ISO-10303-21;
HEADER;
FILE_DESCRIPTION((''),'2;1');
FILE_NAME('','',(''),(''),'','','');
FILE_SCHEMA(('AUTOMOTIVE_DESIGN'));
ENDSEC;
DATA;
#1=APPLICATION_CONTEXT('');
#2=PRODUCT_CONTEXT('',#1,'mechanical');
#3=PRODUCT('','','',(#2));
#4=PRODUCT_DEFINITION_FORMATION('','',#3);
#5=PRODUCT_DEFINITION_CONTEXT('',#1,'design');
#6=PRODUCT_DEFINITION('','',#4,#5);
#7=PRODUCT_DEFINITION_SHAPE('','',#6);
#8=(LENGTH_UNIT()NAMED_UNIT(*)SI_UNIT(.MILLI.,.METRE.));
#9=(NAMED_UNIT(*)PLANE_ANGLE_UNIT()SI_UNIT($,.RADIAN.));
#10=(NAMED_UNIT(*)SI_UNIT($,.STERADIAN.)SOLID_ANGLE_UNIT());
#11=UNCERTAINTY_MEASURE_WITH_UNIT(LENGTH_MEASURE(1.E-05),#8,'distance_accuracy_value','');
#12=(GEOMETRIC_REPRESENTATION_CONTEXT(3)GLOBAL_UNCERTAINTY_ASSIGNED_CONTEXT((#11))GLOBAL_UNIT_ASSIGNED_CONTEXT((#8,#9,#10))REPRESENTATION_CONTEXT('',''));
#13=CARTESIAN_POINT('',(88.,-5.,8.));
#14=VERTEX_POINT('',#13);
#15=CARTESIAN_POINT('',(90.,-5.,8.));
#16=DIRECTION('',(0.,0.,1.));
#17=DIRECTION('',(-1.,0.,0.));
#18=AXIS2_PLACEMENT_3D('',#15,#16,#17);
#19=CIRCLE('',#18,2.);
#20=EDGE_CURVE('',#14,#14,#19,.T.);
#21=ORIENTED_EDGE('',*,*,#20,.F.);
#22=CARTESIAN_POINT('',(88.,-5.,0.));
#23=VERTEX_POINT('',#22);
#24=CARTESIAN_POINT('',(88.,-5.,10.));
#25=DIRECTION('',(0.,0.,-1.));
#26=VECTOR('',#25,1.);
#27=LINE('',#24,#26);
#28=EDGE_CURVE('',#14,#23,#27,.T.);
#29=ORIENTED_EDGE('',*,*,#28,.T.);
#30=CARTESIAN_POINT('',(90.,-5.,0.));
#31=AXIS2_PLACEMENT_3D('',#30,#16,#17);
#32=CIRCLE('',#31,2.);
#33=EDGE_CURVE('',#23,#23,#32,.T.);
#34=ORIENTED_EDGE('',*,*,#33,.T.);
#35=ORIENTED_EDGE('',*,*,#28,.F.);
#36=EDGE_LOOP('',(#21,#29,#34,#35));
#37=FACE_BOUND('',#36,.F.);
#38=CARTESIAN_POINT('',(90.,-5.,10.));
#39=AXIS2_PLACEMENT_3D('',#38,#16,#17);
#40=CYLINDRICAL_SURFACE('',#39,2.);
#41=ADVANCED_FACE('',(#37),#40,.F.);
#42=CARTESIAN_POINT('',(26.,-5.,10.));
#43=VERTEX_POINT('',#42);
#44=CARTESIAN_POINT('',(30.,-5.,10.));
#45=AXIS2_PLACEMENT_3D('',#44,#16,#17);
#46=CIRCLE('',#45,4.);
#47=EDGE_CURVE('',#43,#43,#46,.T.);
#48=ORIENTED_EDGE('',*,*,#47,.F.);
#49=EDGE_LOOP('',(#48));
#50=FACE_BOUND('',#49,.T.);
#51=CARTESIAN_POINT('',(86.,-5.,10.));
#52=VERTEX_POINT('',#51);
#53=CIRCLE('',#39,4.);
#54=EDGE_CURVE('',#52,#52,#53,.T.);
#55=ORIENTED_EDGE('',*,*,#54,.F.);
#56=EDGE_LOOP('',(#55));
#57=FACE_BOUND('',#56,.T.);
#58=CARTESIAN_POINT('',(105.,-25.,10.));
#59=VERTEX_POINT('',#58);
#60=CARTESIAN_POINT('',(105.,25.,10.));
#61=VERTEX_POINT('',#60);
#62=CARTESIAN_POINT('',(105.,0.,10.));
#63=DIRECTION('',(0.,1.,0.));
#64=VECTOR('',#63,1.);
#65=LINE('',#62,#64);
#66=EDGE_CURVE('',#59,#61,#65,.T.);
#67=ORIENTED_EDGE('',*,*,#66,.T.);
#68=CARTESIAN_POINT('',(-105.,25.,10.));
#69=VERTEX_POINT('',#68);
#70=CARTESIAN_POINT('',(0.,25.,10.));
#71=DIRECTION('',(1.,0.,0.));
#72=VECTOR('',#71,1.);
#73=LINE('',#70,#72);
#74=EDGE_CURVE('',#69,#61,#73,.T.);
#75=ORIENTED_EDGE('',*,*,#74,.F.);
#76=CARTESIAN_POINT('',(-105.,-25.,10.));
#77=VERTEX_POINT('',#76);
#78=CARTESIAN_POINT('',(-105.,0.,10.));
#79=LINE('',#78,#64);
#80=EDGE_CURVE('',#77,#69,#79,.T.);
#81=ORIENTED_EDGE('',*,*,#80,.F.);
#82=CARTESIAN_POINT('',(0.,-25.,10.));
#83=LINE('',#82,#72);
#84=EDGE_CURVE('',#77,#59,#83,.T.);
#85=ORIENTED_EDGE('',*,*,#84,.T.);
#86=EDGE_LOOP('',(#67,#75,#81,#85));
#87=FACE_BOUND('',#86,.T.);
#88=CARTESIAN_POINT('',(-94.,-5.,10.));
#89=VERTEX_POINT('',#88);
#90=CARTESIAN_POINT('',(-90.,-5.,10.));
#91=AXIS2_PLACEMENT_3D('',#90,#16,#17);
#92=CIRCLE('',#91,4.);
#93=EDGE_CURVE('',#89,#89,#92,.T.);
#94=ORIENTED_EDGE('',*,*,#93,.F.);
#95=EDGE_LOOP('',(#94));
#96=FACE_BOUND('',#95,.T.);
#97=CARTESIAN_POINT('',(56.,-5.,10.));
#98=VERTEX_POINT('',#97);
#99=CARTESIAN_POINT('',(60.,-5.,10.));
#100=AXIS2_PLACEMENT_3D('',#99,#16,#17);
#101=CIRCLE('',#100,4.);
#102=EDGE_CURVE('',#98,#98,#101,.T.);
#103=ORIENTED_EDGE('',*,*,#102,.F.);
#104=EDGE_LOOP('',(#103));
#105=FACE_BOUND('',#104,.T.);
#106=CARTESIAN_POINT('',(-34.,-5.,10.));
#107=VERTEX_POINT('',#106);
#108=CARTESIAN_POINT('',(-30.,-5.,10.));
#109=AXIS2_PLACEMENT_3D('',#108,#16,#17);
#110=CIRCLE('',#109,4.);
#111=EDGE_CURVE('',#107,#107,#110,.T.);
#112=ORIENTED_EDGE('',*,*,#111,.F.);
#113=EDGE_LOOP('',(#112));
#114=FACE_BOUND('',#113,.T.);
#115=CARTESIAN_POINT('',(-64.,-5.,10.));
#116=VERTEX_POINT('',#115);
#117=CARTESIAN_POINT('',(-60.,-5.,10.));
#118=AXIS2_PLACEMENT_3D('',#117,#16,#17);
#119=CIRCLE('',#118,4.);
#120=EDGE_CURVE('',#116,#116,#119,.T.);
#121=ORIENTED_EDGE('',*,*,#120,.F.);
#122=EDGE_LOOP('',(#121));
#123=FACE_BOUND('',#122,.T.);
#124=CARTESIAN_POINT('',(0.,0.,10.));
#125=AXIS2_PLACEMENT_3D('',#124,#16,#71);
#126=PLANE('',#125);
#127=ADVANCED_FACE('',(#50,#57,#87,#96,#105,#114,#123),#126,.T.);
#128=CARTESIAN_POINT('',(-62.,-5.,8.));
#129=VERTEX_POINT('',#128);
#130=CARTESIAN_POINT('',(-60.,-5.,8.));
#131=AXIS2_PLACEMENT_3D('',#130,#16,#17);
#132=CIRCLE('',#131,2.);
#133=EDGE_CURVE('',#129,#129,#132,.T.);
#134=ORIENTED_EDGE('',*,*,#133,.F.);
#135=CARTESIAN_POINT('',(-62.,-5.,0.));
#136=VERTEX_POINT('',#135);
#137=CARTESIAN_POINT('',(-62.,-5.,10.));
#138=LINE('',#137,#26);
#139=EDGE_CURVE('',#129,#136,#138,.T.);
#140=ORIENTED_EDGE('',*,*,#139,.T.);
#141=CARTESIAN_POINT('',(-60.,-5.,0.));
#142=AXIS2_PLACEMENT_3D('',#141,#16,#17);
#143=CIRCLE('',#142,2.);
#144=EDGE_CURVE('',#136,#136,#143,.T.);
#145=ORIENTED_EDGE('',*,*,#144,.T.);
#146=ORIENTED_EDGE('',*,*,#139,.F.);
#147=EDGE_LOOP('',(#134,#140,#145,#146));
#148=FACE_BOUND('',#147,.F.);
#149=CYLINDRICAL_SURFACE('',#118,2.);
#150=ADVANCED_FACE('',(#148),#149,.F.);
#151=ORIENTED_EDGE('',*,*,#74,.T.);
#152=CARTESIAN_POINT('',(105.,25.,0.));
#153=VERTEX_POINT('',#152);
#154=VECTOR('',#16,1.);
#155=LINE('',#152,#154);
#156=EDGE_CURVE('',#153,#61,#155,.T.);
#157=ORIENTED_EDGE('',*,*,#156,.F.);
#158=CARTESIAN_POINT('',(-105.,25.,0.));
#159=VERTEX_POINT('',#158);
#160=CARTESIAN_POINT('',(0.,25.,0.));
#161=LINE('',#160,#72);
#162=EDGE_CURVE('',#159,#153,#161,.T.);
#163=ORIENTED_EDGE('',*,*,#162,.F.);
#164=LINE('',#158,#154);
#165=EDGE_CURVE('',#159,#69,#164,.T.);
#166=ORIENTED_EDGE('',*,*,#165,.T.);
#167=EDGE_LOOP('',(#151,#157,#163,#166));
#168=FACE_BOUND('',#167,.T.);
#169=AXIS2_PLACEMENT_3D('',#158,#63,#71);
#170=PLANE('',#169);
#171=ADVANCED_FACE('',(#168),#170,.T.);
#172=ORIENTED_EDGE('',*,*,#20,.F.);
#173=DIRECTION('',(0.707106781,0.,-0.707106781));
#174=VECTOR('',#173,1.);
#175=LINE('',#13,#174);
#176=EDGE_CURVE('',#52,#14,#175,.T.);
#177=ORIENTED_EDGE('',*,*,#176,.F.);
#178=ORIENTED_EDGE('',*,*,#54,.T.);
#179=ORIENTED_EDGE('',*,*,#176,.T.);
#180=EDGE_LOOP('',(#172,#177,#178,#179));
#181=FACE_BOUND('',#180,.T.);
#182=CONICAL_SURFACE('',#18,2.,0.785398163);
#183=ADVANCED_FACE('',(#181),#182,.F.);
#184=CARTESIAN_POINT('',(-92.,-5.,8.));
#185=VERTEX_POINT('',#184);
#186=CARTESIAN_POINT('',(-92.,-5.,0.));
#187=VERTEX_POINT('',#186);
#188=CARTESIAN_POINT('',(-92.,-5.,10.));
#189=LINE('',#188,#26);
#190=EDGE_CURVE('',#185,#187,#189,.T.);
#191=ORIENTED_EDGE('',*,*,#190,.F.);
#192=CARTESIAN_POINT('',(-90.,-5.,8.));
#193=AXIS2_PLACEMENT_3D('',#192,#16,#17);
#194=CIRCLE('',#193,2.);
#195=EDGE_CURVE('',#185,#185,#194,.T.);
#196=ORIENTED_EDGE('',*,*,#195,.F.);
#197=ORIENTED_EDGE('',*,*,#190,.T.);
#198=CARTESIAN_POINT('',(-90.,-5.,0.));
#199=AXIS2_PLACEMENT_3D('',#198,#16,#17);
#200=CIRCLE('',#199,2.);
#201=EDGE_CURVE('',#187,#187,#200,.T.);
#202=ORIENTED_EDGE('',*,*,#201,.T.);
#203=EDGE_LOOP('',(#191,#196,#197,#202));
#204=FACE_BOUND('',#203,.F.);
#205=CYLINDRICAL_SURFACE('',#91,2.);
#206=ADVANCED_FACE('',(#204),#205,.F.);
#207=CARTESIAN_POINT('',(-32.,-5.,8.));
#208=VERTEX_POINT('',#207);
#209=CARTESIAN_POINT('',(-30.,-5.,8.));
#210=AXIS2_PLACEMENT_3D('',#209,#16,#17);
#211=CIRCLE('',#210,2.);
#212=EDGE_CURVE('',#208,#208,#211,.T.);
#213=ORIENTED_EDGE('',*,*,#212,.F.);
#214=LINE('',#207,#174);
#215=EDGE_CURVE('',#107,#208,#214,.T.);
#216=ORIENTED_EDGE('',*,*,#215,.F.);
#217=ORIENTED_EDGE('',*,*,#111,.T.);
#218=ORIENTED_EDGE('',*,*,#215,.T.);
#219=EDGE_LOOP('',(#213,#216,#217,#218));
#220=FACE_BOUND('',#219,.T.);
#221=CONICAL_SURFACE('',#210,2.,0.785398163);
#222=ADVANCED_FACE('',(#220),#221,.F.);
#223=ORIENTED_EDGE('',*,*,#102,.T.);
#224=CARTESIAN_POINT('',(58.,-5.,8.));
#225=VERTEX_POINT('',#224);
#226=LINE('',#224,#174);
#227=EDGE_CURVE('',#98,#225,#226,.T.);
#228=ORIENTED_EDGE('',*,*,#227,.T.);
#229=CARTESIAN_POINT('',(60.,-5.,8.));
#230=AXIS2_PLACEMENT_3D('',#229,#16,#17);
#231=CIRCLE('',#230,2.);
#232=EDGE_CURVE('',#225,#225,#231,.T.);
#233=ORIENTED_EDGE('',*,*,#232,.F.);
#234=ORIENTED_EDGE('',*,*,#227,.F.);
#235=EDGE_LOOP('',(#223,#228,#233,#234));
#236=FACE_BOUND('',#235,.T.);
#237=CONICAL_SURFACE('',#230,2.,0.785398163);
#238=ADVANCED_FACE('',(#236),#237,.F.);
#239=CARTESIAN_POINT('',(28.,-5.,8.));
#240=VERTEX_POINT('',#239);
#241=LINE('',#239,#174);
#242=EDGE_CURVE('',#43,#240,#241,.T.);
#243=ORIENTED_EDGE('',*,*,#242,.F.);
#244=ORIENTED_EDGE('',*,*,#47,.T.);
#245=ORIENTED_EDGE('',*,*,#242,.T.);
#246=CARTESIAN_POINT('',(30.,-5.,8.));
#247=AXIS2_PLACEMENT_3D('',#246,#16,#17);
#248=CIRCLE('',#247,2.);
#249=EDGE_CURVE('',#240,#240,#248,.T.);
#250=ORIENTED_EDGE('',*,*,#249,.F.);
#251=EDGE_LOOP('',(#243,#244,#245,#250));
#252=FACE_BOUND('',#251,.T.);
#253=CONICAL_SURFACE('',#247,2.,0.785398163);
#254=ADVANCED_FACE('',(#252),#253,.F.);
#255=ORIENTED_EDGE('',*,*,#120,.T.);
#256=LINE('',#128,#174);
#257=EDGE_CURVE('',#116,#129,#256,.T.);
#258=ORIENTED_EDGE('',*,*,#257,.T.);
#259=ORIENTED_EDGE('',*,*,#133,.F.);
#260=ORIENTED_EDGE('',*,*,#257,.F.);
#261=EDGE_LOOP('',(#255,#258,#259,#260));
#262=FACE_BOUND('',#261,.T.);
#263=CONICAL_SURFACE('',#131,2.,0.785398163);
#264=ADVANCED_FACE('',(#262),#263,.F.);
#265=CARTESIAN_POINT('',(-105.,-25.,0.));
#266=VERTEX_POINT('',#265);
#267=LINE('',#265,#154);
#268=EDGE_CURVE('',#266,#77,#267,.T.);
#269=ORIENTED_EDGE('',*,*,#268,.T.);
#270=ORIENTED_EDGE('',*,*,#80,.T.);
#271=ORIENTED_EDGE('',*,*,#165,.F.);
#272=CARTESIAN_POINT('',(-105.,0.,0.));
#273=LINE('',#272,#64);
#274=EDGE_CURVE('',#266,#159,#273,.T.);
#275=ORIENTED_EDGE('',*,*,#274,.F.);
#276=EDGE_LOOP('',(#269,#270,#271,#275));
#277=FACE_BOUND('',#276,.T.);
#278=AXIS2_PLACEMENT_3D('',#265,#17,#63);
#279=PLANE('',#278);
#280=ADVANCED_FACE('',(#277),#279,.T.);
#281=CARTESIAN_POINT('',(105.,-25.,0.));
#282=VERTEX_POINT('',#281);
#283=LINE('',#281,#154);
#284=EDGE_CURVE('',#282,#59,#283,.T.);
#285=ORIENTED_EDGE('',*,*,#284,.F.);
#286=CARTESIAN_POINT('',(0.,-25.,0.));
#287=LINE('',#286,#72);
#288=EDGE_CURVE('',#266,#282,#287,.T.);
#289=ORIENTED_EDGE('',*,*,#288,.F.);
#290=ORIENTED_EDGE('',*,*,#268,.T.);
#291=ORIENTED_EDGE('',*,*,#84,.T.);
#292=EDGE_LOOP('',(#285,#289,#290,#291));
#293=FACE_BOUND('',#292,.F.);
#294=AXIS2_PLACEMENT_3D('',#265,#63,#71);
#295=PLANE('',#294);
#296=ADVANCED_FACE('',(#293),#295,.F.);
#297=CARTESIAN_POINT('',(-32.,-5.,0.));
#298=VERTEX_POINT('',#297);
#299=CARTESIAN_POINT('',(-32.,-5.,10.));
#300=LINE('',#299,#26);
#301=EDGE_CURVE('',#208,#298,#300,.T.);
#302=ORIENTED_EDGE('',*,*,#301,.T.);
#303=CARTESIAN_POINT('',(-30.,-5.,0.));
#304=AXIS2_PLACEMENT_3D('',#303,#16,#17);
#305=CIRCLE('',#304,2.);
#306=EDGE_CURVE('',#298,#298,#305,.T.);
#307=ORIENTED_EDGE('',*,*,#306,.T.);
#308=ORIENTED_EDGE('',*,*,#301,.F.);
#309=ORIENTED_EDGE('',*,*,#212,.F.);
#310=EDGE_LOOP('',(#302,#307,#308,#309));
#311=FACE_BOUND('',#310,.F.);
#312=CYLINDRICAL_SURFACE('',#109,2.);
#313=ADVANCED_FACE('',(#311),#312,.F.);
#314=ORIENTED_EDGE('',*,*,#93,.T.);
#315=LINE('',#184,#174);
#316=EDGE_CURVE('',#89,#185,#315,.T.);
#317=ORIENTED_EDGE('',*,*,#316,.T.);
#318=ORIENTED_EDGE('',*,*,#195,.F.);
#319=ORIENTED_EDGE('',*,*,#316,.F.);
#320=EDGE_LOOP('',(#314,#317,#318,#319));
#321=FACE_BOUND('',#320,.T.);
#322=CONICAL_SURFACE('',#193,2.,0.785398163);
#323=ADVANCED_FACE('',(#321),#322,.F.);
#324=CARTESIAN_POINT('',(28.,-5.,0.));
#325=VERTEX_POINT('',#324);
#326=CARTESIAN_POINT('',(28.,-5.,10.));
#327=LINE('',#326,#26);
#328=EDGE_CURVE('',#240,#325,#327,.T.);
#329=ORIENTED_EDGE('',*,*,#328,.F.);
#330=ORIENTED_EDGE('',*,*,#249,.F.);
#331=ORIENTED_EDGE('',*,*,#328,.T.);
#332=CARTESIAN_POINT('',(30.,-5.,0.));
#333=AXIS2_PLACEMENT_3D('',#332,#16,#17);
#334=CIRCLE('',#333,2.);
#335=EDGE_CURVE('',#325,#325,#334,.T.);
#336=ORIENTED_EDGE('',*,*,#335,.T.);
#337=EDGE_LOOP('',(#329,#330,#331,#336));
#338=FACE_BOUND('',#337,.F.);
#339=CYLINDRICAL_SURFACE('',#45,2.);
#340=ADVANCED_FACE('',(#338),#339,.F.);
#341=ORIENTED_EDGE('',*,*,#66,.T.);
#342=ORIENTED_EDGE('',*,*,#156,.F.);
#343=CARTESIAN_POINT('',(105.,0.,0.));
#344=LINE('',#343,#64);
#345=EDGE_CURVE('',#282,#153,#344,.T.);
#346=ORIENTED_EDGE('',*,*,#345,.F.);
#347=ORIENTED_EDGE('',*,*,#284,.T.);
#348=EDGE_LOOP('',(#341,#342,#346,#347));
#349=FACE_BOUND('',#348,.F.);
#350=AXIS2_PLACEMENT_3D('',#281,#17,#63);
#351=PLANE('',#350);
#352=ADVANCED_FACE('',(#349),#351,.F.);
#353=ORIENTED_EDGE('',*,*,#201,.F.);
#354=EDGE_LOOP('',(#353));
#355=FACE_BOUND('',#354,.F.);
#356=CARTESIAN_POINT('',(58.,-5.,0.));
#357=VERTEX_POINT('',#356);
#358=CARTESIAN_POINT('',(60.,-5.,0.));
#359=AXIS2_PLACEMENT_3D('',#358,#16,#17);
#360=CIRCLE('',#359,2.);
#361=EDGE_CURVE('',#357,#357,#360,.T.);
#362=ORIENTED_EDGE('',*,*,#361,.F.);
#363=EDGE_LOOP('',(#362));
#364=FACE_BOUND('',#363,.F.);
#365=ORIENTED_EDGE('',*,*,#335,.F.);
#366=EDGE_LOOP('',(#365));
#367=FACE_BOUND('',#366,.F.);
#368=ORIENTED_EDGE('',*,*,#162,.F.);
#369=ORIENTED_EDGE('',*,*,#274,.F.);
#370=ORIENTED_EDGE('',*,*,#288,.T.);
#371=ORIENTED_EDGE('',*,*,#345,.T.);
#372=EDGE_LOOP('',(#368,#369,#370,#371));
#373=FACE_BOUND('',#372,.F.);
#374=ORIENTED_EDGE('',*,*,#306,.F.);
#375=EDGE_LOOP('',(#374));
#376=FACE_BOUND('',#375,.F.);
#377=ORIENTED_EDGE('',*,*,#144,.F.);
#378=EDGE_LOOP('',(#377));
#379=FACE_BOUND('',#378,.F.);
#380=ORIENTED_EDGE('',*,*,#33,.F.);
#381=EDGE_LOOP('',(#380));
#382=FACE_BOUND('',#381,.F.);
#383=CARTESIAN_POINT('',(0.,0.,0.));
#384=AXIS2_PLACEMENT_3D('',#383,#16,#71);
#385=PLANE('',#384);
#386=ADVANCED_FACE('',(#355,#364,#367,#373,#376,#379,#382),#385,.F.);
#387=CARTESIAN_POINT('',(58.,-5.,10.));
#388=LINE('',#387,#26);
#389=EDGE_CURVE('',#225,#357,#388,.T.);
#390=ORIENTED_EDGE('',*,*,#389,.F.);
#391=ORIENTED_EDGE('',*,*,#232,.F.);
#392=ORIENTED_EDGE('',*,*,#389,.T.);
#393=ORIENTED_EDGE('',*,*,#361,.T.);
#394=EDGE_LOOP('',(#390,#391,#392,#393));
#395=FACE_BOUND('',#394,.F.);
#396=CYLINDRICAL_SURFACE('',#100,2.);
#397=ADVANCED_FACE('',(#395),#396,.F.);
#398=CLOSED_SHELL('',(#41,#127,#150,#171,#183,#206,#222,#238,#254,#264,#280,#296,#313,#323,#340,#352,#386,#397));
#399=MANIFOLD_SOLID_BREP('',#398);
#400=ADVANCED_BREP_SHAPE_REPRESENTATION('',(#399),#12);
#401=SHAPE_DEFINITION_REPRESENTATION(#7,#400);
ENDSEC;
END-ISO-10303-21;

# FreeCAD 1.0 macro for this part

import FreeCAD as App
import Part
import Sketcher

V = App.Vector
Q = App.Units.Quantity


def edges_at(feature, points):
    """Names of the edges that pass closest to the given points."""
    edges = feature.Shape.Edges
    near = lambda p: min(range(len(edges)), key=lambda i: edges[i].distToShape(Part.Vertex(*p))[0])
    return sorted({f"Edge{near(p) + 1}" for p in points})


def add_polygon(sketch, points):
    """Adds a closed chain of lines whose ends are joined by coincident constraints."""
    first, n = sketch.GeometryCount, len(points)
    for a, b in zip(points, points[1:] + points[:1]):
        sketch.addGeometry(Part.LineSegment(App.Vector(*a, 0), App.Vector(*b, 0)), False)
    for i in range(n):
        sketch.addConstraint(Sketcher.Constraint("Coincident", first + i, 2, first + (i + 1) % n, 1))

doc = App.newDocument("Part")
body = doc.addObject("PartDesign::Body", "Body")

sketch1 = body.newObject("Sketcher::SketchObject", "Sketch")
sketch1.AttachmentSupport = (doc.getObject("XY_Plane"), [""])
sketch1.MapMode = "FlatFace"
add_polygon(sketch1, [(-105, 25), (-105, -25), (105, -25), (105, 25)])
sketch1.addConstraint(Sketcher.Constraint("Vertical", 0))
sketch1.addConstraint(Sketcher.Constraint("Horizontal", 1))
sketch1.addConstraint(Sketcher.Constraint("Vertical", 2))
sketch1.addConstraint(Sketcher.Constraint("Horizontal", 3))
sketch1.addConstraint(Sketcher.Constraint("Symmetric", 0, 2, 2, 2, -1, 1))
sketch1.addConstraint(Sketcher.Constraint("DistanceX", 1, 1, 1, 2, Q("210 mm")))
sketch1.addConstraint(Sketcher.Constraint("DistanceY", 0, 2, 0, 1, Q("50 mm")))
pad1 = body.newObject("PartDesign::Pad", "Pad")
pad1.Profile = sketch1
pad1.Length = 10

sketch2 = body.newObject("Sketcher::SketchObject", "Sketch001")
sketch2.AttachmentSupport = (doc.getObject("XY_Plane"), [""])
sketch2.MapMode = "FlatFace"
sketch2.AttachmentOffset = App.Placement(V(0, 0, 10), App.Rotation())
sketch2.addGeometry(Part.Circle(V(-90, -5, 0), V(0, 0, 1), 2), False)
sketch2.addGeometry(Part.Circle(V(-60, -5, 0), V(0, 0, 1), 2), False)
sketch2.addGeometry(Part.Circle(V(-30, -5, 0), V(0, 0, 1), 2), False)
sketch2.addGeometry(Part.Circle(V(30, -5, 0), V(0, 0, 1), 2), False)
sketch2.addGeometry(Part.Circle(V(60, -5, 0), V(0, 0, 1), 2), False)
sketch2.addGeometry(Part.Circle(V(90, -5, 0), V(0, 0, 1), 2), False)
sketch2.addConstraint(Sketcher.Constraint("Equal", 0, 1))
sketch2.addConstraint(Sketcher.Constraint("Equal", 1, 2))
sketch2.addConstraint(Sketcher.Constraint("Equal", 2, 3))
sketch2.addConstraint(Sketcher.Constraint("Equal", 3, 4))
sketch2.addConstraint(Sketcher.Constraint("Equal", 4, 5))
sketch2.addConstraint(Sketcher.Constraint("Symmetric", 2, 3, 3, 3, -2))
sketch2.addConstraint(Sketcher.Constraint("Symmetric", 1, 3, 4, 3, -2))
sketch2.addConstraint(Sketcher.Constraint("Symmetric", 0, 3, 5, 3, -2))
sketch2.addConstraint(Sketcher.Constraint("Horizontal", 0, 3, 1, 3))
sketch2.addConstraint(Sketcher.Constraint("Horizontal", 1, 3, 2, 3))
sketch2.addConstraint(Sketcher.Constraint("Diameter", 0, Q("4 mm")))
sketch2.addConstraint(Sketcher.Constraint("DistanceX", 0, 3, -1, 1, Q("90 mm")))
sketch2.addConstraint(Sketcher.Constraint("DistanceY", 0, 3, -1, 1, Q("5 mm")))
sketch2.addConstraint(Sketcher.Constraint("DistanceX", 1, 3, -1, 1, Q("60 mm")))
sketch2.addConstraint(Sketcher.Constraint("DistanceX", 2, 3, -1, 1, Q("30 mm")))
pocket1 = body.newObject("PartDesign::Pocket", "Pocket")
pocket1.Profile = sketch2
pocket1.Type = "ThroughAll"
doc.recompute()

chamfer = body.newObject("PartDesign::Chamfer", "Chamfer")
chamfer.Base = (pocket1, edges_at(pocket1, [
    (-88, -5, 10),
    (-58, -5, 10),
    (-28, -5, 10),
    (32, -5, 10),
    (62, -5, 10),
    (92, -5, 10),
]))
chamfer.Size = 2

doc.recompute()
